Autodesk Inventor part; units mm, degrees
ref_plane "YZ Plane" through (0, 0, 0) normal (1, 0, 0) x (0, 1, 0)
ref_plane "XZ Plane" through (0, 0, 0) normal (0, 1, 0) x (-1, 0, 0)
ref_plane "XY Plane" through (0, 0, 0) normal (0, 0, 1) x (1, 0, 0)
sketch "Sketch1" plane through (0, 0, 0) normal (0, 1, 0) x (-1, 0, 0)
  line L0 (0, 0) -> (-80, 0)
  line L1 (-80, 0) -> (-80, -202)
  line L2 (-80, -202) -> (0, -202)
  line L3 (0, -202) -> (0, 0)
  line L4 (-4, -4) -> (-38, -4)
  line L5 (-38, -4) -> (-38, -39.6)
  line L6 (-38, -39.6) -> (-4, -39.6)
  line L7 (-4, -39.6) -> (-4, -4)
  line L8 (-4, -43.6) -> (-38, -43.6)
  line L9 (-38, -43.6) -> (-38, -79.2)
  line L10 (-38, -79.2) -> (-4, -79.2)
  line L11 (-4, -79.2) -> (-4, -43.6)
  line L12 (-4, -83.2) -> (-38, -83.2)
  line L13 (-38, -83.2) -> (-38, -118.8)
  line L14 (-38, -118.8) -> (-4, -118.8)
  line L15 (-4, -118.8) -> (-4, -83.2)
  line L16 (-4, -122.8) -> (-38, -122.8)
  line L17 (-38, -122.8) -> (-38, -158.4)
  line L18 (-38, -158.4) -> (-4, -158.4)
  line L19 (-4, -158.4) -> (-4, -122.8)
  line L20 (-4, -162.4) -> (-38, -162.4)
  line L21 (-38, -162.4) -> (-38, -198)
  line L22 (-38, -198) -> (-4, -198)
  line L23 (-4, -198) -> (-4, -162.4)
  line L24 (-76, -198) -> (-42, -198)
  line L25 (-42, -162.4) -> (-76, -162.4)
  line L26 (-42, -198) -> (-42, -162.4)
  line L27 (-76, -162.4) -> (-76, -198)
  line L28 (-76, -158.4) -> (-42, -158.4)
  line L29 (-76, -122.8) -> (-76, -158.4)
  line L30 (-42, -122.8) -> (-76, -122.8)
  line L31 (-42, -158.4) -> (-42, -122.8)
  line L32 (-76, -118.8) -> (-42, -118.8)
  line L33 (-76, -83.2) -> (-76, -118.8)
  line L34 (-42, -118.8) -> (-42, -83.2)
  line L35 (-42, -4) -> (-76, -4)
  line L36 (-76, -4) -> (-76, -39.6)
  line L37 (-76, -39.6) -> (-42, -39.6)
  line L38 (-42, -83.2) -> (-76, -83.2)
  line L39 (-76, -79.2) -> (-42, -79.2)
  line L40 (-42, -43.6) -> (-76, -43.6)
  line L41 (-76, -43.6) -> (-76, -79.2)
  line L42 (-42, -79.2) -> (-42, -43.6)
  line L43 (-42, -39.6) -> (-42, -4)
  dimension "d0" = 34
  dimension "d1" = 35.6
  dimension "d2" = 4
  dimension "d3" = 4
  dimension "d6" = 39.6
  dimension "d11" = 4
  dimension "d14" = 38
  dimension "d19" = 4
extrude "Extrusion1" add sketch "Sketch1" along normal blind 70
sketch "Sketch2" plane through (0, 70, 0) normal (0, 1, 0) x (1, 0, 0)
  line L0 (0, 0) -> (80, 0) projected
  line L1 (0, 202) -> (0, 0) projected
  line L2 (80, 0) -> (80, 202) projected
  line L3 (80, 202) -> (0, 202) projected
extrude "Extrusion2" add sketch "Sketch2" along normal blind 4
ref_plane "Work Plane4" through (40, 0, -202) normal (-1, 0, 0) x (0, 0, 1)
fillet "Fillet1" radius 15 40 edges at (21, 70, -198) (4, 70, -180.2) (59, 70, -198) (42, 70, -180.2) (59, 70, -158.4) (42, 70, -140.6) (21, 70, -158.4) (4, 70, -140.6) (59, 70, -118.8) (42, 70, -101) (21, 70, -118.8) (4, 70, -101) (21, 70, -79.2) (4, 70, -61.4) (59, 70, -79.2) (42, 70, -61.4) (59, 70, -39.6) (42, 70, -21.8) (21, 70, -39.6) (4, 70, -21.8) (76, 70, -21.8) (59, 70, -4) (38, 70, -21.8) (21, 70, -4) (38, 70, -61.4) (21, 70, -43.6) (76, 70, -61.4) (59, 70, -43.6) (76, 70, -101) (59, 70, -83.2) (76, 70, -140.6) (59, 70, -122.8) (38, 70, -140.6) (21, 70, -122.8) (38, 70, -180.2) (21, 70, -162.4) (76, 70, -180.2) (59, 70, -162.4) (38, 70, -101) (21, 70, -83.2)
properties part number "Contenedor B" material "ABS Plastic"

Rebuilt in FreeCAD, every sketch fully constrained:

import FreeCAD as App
import Part
import Sketcher

V = App.Vector
Q = App.Units.Quantity


def edges_at(feature, points):
    """Names of the edges that pass closest to the given points."""
    edges = feature.Shape.Edges
    near = lambda p: min(range(len(edges)), key=lambda i: edges[i].distToShape(Part.Vertex(*p))[0])
    return sorted({f"Edge{near(p) + 1}" for p in points})


def add_polygon(sketch, points):
    """Adds a closed chain of lines whose ends are joined by coincident constraints."""
    first, n = sketch.GeometryCount, len(points)
    for a, b in zip(points, points[1:] + points[:1]):
        sketch.addGeometry(Part.LineSegment(App.Vector(*a, 0), App.Vector(*b, 0)), False)
    for i in range(n):
        sketch.addConstraint(Sketcher.Constraint("Coincident", first + i, 2, first + (i + 1) % n, 1))

doc = App.newDocument("Part")
params = doc.addObject("Spreadsheet::Sheet", "Params")
for row, (alias, value) in enumerate([
    ("sketch1_width", "34 mm"),
    ("sketch1_height", "35.6 mm"),
    ("pad1_length", "70 mm"),
    ("sketch2_width", "80 mm"),
    ("sketch2_height", "202 mm"),
    ("pad2_length", "4 mm"),
    ("fillet_radius", "15 mm"),
], start=1):
    params.set(f"A{row}", alias)
    params.set(f"B{row}", "=" + value)
    params.setAlias(f"B{row}", alias)

body = doc.addObject("PartDesign::Body", "Body")

# Sketch on XZ plane
sketch1 = doc.addObject("Sketcher::SketchObject", "Sketch")
body.addObject(sketch1)
sketch1.AttachmentSupport = (doc.XZ_Plane, [""])
sketch1.MapMode = "FlatFace"
add_polygon(sketch1, [(0, -202), (0, 0), (80, 0), (80, -202)])  # lines 0-3
add_polygon(sketch1, [(42, -198), (76, -198), (76, -162.4), (42, -162.4)])  # lines 4-7
add_polygon(sketch1, [(42, -158.4), (76, -158.4), (76, -122.8), (42, -122.8)])  # lines 8-11
add_polygon(sketch1, [(38, -162.4), (4, -162.4), (4, -198), (38, -198)])  # lines 12-15
add_polygon(sketch1, [(38, -122.8), (4, -122.8), (4, -158.4), (38, -158.4)])  # lines 16-19
add_polygon(sketch1, [(42, -118.8), (76, -118.8), (76, -83.2), (42, -83.2)])  # lines 20-23
add_polygon(sketch1, [(42, -79.2), (76, -79.2), (76, -43.6), (42, -43.6)])  # lines 24-27
add_polygon(sketch1, [(76, -4), (42, -4), (42, -39.6), (76, -39.6)])  # lines 28-31
add_polygon(sketch1, [(38, -83.2), (4, -83.2), (4, -118.8), (38, -118.8)])  # lines 32-35
add_polygon(sketch1, [(38, -43.6), (4, -43.6), (4, -79.2), (38, -79.2)])  # lines 36-39
add_polygon(sketch1, [(38, -4), (4, -4), (4, -39.6), (38, -39.6)])  # lines 40-43
sketch1.addConstraint([
    Sketcher.Constraint("Vertical", 0),
    Sketcher.Constraint("Horizontal", 1),
    Sketcher.Constraint("Vertical", 2),
    Sketcher.Constraint("Horizontal", 3),
    Sketcher.Constraint("Horizontal", 4),
    Sketcher.Constraint("Vertical", 5),
    Sketcher.Constraint("Horizontal", 6),
    Sketcher.Constraint("Vertical", 7),
    Sketcher.Constraint("Horizontal", 8),
    Sketcher.Constraint("Vertical", 9),
    Sketcher.Constraint("Horizontal", 10),
    Sketcher.Constraint("Vertical", 11),
    Sketcher.Constraint("Horizontal", 12),
    Sketcher.Constraint("Vertical", 13),
    Sketcher.Constraint("Horizontal", 14),
    Sketcher.Constraint("Vertical", 15),
    Sketcher.Constraint("Horizontal", 16),
    Sketcher.Constraint("Vertical", 17),
    Sketcher.Constraint("Horizontal", 18),
    Sketcher.Constraint("Vertical", 19),
    Sketcher.Constraint("Horizontal", 20),
    Sketcher.Constraint("Vertical", 21),
    Sketcher.Constraint("Horizontal", 22),
    Sketcher.Constraint("Vertical", 23),
    Sketcher.Constraint("Horizontal", 24),
    Sketcher.Constraint("Vertical", 25),
    Sketcher.Constraint("Horizontal", 26),
    Sketcher.Constraint("Vertical", 27),
    Sketcher.Constraint("Horizontal", 28),
    Sketcher.Constraint("Vertical", 29),
    Sketcher.Constraint("Horizontal", 30),
    Sketcher.Constraint("Vertical", 31),
    Sketcher.Constraint("Horizontal", 32),
    Sketcher.Constraint("Vertical", 33),
    Sketcher.Constraint("Horizontal", 34),
    Sketcher.Constraint("Vertical", 35),
    Sketcher.Constraint("Horizontal", 36),
    Sketcher.Constraint("Vertical", 37),
    Sketcher.Constraint("Horizontal", 38),
    Sketcher.Constraint("Vertical", 39),
    Sketcher.Constraint("Horizontal", 40),
    Sketcher.Constraint("Vertical", 41),
    Sketcher.Constraint("Horizontal", 42),
    Sketcher.Constraint("Vertical", 43),
    Sketcher.Constraint("Coincident", 0, 2, -1, 1),
    Sketcher.Constraint("Horizontal", 6, 2, 12, 2),
    Sketcher.Constraint("Horizontal", 7, 2, 13, 2),
    Sketcher.Constraint("Horizontal", 10, 2, 16, 2),
    Sketcher.Constraint("Horizontal", 11, 2, 17, 2),
    Sketcher.Constraint("Horizontal", 22, 2, 32, 2),
    Sketcher.Constraint("Horizontal", 23, 2, 33, 2),
    Sketcher.Constraint("Horizontal", 26, 2, 36, 2),
    Sketcher.Constraint("Horizontal", 27, 2, 37, 2),
    Sketcher.Constraint("Horizontal", 31, 2, 40, 2),
    Sketcher.Constraint("Horizontal", 30, 2, 41, 2),
    Sketcher.Constraint("Vertical", 5, 2, 8, 2),
    Sketcher.Constraint("Vertical", 7, 2, 10, 2),
    Sketcher.Constraint("Vertical", 13, 2, 16, 2),
    Sketcher.Constraint("Vertical", 15, 2, 18, 2),
    Sketcher.Constraint("Vertical", 9, 2, 20, 2),
    Sketcher.Constraint("Vertical", 11, 2, 22, 2),
    Sketcher.Constraint("Vertical", 21, 2, 24, 2),
    Sketcher.Constraint("Vertical", 23, 2, 26, 2),
    Sketcher.Constraint("Vertical", 27, 2, 28, 2),
    Sketcher.Constraint("Vertical", 25, 2, 30, 2),
    Sketcher.Constraint("Vertical", 17, 2, 32, 2),
    Sketcher.Constraint("Vertical", 19, 2, 34, 2),
    Sketcher.Constraint("Vertical", 33, 2, 36, 2),
    Sketcher.Constraint("Vertical", 35, 2, 38, 2),
    Sketcher.Constraint("Vertical", 37, 2, 40, 2),
    Sketcher.Constraint("Vertical", 39, 2, 42, 2),
    Sketcher.Constraint("Equal", 10, 12),
    Sketcher.Constraint("Equal", 7, 9),
    Sketcher.Constraint("Equal", 19, 21),
    Sketcher.Constraint("Equal", 23, 25),
    Sketcher.Constraint("Equal", 27, 29),
    Sketcher.Constraint("DistanceX", 4, 1, 4, 2, Q("34 mm")),
    Sketcher.Constraint("DistanceY", 5, 1, 5, 2, Q("35.6 mm")),
    Sketcher.Constraint("DistanceX", -1, 1, 12, 2, Q("4 mm")),
    Sketcher.Constraint("DistanceY", 28, 2, -1, 1, Q("4 mm")),
    Sketcher.Constraint("DistanceX", 4, 2, 2, 2, Q("4 mm")),
    Sketcher.Constraint("DistanceY", 2, 2, 4, 2, Q("4 mm")),
    Sketcher.Constraint("DistanceY", 5, 2, 8, 2, Q("4 mm")),
    Sketcher.Constraint("DistanceX", 12, 2, 6, 2, Q("38 mm")),
    Sketcher.Constraint("DistanceY", 9, 2, 20, 2, Q("4 mm")),
    Sketcher.Constraint("DistanceY", 21, 2, 24, 2, Q("4 mm")),
    Sketcher.Constraint("DistanceY", 26, 2, 29, 2, Q("4 mm")),
])
sketch1.setExpression("Constraints[120]", "Params.sketch1_width")
sketch1.setExpression("Constraints[121]", "Params.sketch1_height")
pad1 = doc.addObject("PartDesign::Pad", "Pad")
body.addObject(pad1)
pad1.Profile = sketch1
pad1.setExpression("Length", "Params.pad1_length")
pad1.Reversed = True

# Sketch on XZ plane
sketch2 = doc.addObject("Sketcher::SketchObject", "Sketch001")
body.addObject(sketch2)
sketch2.AttachmentSupport = (doc.XZ_Plane, [""])
sketch2.MapMode = "FlatFace"
sketch2.AttachmentOffset = App.Placement(V(0, 0, -70), App.Rotation())
add_polygon(sketch2, [(0, -202), (0, 0), (80, 0), (80, -202)])  # lines 0-3
sketch2.addConstraint([
    Sketcher.Constraint("Vertical", 0),
    Sketcher.Constraint("Horizontal", 1),
    Sketcher.Constraint("Vertical", 2),
    Sketcher.Constraint("Horizontal", 3),
    Sketcher.Constraint("Coincident", 0, 2, -1, 1),
    Sketcher.Constraint("DistanceX", 1, 1, 1, 2, Q("80 mm")),
    Sketcher.Constraint("DistanceY", 0, 1, 0, 2, Q("202 mm")),
])
sketch2.setExpression("Constraints[9]", "Params.sketch2_width")
sketch2.setExpression("Constraints[10]", "Params.sketch2_height")
pad2 = doc.addObject("PartDesign::Pad", "Pad001")
body.addObject(pad2)
pad2.Profile = sketch2
pad2.setExpression("Length", "Params.pad2_length")
pad2.Reversed = True
doc.recompute()

fillet = doc.addObject("PartDesign::Fillet", "Fillet")
body.addObject(fillet)
fillet.Base = (pad2, edges_at(pad2, [
    (21, 70, -198),
    (4, 70, -180.2),
    (59, 70, -198),
    (42, 70, -180.2),
    (59, 70, -158.4),
    (42, 70, -140.6),
    (21, 70, -158.4),
    (4, 70, -140.6),
    (59, 70, -118.8),
    (42, 70, -101),
    (21, 70, -118.8),
    (4, 70, -101),
    (21, 70, -79.2),
    (4, 70, -61.4),
    (59, 70, -79.2),
    (42, 70, -61.4),
    (59, 70, -39.6),
    (42, 70, -21.8),
    (21, 70, -39.6),
    (4, 70, -21.8),
    (76, 70, -21.8),
    (59, 70, -4),
    (38, 70, -21.8),
    (21, 70, -4),
    (38, 70, -61.4),
    (21, 70, -43.6),
    (76, 70, -61.4),
    (59, 70, -43.6),
    (76, 70, -101),
    (59, 70, -83.2),
    (76, 70, -140.6),
    (59, 70, -122.8),
    (38, 70, -140.6),
    (21, 70, -122.8),
    (38, 70, -180.2),
    (21, 70, -162.4),
    (76, 70, -180.2),
    (59, 70, -162.4),
    (38, 70, -101),
    (21, 70, -83.2),
]))
fillet.setExpression("Radius", "Params.fillet_radius")

doc.recompute()
